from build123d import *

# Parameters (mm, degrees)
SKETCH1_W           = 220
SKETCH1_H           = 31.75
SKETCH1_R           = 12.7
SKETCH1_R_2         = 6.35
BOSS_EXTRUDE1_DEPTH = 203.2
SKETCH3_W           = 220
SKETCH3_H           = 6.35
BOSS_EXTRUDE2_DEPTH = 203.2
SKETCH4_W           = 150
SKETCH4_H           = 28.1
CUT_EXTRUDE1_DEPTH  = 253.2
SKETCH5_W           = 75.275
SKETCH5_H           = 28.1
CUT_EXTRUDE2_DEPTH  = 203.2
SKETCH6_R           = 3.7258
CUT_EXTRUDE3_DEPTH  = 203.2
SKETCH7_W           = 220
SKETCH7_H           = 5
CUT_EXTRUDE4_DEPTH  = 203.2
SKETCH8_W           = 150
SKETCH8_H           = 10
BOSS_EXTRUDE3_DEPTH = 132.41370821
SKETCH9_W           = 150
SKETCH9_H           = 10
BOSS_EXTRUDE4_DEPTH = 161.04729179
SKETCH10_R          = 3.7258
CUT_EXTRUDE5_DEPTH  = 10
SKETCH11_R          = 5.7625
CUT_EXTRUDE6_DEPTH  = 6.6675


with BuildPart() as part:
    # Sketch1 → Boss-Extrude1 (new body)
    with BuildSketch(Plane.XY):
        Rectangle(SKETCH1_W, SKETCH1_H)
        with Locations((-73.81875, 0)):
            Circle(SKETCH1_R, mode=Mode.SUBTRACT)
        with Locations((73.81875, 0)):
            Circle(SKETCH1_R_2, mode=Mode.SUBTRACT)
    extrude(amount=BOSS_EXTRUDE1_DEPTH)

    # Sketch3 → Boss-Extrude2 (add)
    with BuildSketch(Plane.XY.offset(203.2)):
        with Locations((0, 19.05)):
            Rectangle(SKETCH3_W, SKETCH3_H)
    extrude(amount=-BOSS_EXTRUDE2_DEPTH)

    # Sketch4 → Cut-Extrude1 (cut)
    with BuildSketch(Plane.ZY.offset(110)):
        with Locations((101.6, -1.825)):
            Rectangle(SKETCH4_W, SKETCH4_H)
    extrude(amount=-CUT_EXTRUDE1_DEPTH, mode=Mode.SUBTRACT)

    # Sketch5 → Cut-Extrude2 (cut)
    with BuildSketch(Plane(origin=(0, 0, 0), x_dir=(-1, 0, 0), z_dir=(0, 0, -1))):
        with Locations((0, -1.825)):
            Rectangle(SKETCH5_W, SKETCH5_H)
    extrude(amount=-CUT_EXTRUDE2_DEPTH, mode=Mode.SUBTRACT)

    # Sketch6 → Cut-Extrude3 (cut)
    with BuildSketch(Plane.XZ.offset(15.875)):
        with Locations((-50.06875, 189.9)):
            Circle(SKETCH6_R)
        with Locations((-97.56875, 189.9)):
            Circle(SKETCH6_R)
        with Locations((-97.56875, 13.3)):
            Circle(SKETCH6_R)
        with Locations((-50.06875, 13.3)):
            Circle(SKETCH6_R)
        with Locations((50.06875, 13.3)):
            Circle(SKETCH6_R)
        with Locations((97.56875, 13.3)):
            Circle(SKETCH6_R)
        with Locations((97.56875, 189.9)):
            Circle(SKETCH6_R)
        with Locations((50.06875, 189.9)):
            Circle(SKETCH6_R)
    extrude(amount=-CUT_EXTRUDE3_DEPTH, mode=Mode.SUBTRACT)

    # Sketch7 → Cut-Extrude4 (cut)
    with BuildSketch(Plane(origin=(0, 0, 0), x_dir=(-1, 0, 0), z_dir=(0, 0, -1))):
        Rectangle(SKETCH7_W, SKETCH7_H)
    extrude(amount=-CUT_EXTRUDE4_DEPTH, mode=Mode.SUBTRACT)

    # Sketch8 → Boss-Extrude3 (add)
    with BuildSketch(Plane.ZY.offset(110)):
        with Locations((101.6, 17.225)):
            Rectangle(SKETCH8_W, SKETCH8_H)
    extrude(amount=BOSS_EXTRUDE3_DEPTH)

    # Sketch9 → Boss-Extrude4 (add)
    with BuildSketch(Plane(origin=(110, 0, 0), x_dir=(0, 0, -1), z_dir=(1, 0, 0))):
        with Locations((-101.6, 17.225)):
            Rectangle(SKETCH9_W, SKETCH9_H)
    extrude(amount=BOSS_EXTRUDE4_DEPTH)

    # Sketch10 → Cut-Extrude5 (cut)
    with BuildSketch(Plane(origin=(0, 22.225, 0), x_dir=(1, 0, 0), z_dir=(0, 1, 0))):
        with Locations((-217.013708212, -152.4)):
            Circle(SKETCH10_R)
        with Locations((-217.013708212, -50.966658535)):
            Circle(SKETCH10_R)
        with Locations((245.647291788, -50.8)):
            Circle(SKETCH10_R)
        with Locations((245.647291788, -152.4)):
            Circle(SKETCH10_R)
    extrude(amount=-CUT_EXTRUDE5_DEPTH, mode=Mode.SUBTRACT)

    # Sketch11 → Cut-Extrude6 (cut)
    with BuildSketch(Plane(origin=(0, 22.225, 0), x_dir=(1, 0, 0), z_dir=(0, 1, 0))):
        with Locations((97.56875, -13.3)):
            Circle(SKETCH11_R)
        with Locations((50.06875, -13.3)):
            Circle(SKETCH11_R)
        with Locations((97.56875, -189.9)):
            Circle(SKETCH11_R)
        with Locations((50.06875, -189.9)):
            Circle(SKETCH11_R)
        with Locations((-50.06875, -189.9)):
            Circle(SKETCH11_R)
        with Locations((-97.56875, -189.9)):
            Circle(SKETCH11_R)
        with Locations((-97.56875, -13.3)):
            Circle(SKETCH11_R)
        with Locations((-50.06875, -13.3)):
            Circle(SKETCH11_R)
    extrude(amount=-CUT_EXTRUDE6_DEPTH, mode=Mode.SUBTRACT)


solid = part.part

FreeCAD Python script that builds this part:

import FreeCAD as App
import Part
import Sketcher
Q = App.Units.Quantity

doc = App.newDocument("Part")
body = doc.addObject("PartDesign::Body", "Body")
body.AllowCompound = True

# Sketch on XY plane
sketch1 = body.newObject("Sketcher::SketchObject", "Sketch")
sketch1.AttachmentSupport = (doc.getObject("XY_Plane"), [""])
sketch1.MapMode = "FlatFace"
sketch1.addGeometry(Part.LineSegment(App.Vector(-110, 15.875, 0), App.Vector(-110, -15.875, 0)), False)
sketch1.addGeometry(Part.LineSegment(App.Vector(-110, -15.875, 0), App.Vector(110, -15.875, 0)), False)
sketch1.addGeometry(Part.LineSegment(App.Vector(110, -15.875, 0), App.Vector(110, 15.875, 0)), False)
sketch1.addGeometry(Part.LineSegment(App.Vector(110, 15.875, 0), App.Vector(-110, 15.875, 0)), False)
sketch1.addGeometry(Part.Circle(App.Vector(-73.81875, 0, 0), App.Vector(0, 0, 1), 12.7), False)
sketch1.addGeometry(Part.Circle(App.Vector(73.81875, 0, 0), App.Vector(0, 0, 1), 6.35), False)
sketch1.addConstraint(Sketcher.Constraint("Coincident", 0, 2, 1, 1))
sketch1.addConstraint(Sketcher.Constraint("Coincident", 1, 2, 2, 1))
sketch1.addConstraint(Sketcher.Constraint("Coincident", 2, 2, 3, 1))
sketch1.addConstraint(Sketcher.Constraint("Coincident", 3, 2, 0, 1))
sketch1.addConstraint(Sketcher.Constraint("Vertical", 0))
sketch1.addConstraint(Sketcher.Constraint("Horizontal", 1))
sketch1.addConstraint(Sketcher.Constraint("Vertical", 2))
sketch1.addConstraint(Sketcher.Constraint("Horizontal", 3))
sketch1.addConstraint(Sketcher.Constraint("Symmetric", 4, 3, 5, 3, -1, 1))
sketch1.addConstraint(Sketcher.Constraint("Symmetric", 0, 2, 2, 2, -1, 1))
sketch1.addConstraint(Sketcher.Constraint("PointOnObject", 4, 3, -1))
sketch1.addConstraint(Sketcher.Constraint("Diameter", 4, Q("25.4 mm")))
sketch1.addConstraint(Sketcher.Constraint("Diameter", 5, Q("12.7 mm")))
sketch1.addConstraint(Sketcher.Constraint("DistanceX", 1, 1, 1, 2, Q("220 mm")))
sketch1.addConstraint(Sketcher.Constraint("DistanceY", 0, 2, 0, 1, Q("31.75 mm")))
sketch1.addConstraint(Sketcher.Constraint("DistanceX", 4, 3, 5, 3, Q("147.6375 mm")))
pad1 = body.newObject("PartDesign::Pad", "Pad")
pad1.Profile = sketch1
pad1.Length = 203.2

# Sketch on XY plane
sketch2 = body.newObject("Sketcher::SketchObject", "Sketch001")
sketch2.AttachmentSupport = (doc.getObject("XY_Plane"), [""])
sketch2.MapMode = "FlatFace"
sketch2.AttachmentOffset = App.Placement(App.Vector(0, 0, 203.2), App.Rotation())
sketch2.addGeometry(Part.LineSegment(App.Vector(-110, 22.225, 0), App.Vector(-110, 15.875, 0)), False)
sketch2.addGeometry(Part.LineSegment(App.Vector(-110, 15.875, 0), App.Vector(110, 15.875, 0)), False)
sketch2.addGeometry(Part.LineSegment(App.Vector(110, 15.875, 0), App.Vector(110, 22.225, 0)), False)
sketch2.addGeometry(Part.LineSegment(App.Vector(110, 22.225, 0), App.Vector(-110, 22.225, 0)), False)
sketch2.addConstraint(Sketcher.Constraint("Coincident", 0, 2, 1, 1))
sketch2.addConstraint(Sketcher.Constraint("Coincident", 1, 2, 2, 1))
sketch2.addConstraint(Sketcher.Constraint("Coincident", 2, 2, 3, 1))
sketch2.addConstraint(Sketcher.Constraint("Coincident", 3, 2, 0, 1))
sketch2.addConstraint(Sketcher.Constraint("Vertical", 0))
sketch2.addConstraint(Sketcher.Constraint("Horizontal", 1))
sketch2.addConstraint(Sketcher.Constraint("Vertical", 2))
sketch2.addConstraint(Sketcher.Constraint("Horizontal", 3))
sketch2.addConstraint(Sketcher.Constraint("DistanceX", 1, 1, 1, 2, Q("220 mm")))
sketch2.addConstraint(Sketcher.Constraint("DistanceX", 0, 2, -1, 1, Q("110 mm")))
sketch2.addConstraint(Sketcher.Constraint("DistanceY", 0, 2, 0, 1, Q("6.35 mm")))
sketch2.addConstraint(Sketcher.Constraint("DistanceY", -1, 1, 0, 2, Q("15.875 mm")))
pad2 = body.newObject("PartDesign::Pad", "Pad001")
pad2.Profile = sketch2
pad2.Length = 203.2
pad2.Reversed = True

# Sketch on YZ plane
sketch3 = body.newObject("Sketcher::SketchObject", "Sketch002")
sketch3.AttachmentSupport = (doc.getObject("YZ_Plane"), [""])
sketch3.MapMode = "FlatFace"
sketch3.AttachmentOffset = App.Placement(App.Vector(0, 0, -110), App.Rotation())
sketch3.addGeometry(Part.LineSegment(App.Vector(12.225, 26.6, 0), App.Vector(-15.875, 26.6, 0)), False)
sketch3.addGeometry(Part.LineSegment(App.Vector(-15.875, 26.6, 0), App.Vector(-15.875, 176.6, 0)), False)
sketch3.addGeometry(Part.LineSegment(App.Vector(-15.875, 176.6, 0), App.Vector(12.225, 176.6, 0)), False)
sketch3.addGeometry(Part.LineSegment(App.Vector(12.225, 176.6, 0), App.Vector(12.225, 26.6, 0)), False)
sketch3.addConstraint(Sketcher.Constraint("Coincident", 0, 2, 1, 1))
sketch3.addConstraint(Sketcher.Constraint("Coincident", 1, 2, 2, 1))
sketch3.addConstraint(Sketcher.Constraint("Coincident", 2, 2, 3, 1))
sketch3.addConstraint(Sketcher.Constraint("Coincident", 3, 2, 0, 1))
sketch3.addConstraint(Sketcher.Constraint("Horizontal", 0))
sketch3.addConstraint(Sketcher.Constraint("Vertical", 1))
sketch3.addConstraint(Sketcher.Constraint("Horizontal", 2))
sketch3.addConstraint(Sketcher.Constraint("Vertical", 3))
sketch3.addConstraint(Sketcher.Constraint("DistanceY", 1, 1, 1, 2, Q("150 mm")))
sketch3.addConstraint(Sketcher.Constraint("DistanceX", 0, 2, 0, 1, Q("28.1 mm")))
sketch3.addConstraint(Sketcher.Constraint("DistanceY", -1, 1, 0, 2, Q("26.6 mm")))
sketch3.addConstraint(Sketcher.Constraint("DistanceX", 0, 2, -1, 1, Q("15.875 mm")))
pocket1 = body.newObject("PartDesign::Pocket", "Pocket")
pocket1.Profile = sketch3
pocket1.Length = 253.2
pocket1.Reversed = True

# Sketch on XY plane
sketch4 = body.newObject("Sketcher::SketchObject", "Sketch003")
sketch4.AttachmentSupport = (doc.getObject("XY_Plane"), [""])
sketch4.MapMode = "FlatFace"
sketch4.addGeometry(Part.LineSegment(App.Vector(37.6375, 12.225, 0), App.Vector(37.6375, -15.875, 0)), False)
sketch4.addGeometry(Part.LineSegment(App.Vector(37.6375, -15.875, 0), App.Vector(-37.6375, -15.875, 0)), False)
sketch4.addGeometry(Part.LineSegment(App.Vector(-37.6375, -15.875, 0), App.Vector(-37.6375, 12.225, 0)), False)
sketch4.addGeometry(Part.LineSegment(App.Vector(-37.6375, 12.225, 0), App.Vector(37.6375, 12.225, 0)), False)
sketch4.addConstraint(Sketcher.Constraint("Coincident", 0, 2, 1, 1))
sketch4.addConstraint(Sketcher.Constraint("Coincident", 1, 2, 2, 1))
sketch4.addConstraint(Sketcher.Constraint("Coincident", 2, 2, 3, 1))
sketch4.addConstraint(Sketcher.Constraint("Coincident", 3, 2, 0, 1))
sketch4.addConstraint(Sketcher.Constraint("Vertical", 0))
sketch4.addConstraint(Sketcher.Constraint("Horizontal", 1))
sketch4.addConstraint(Sketcher.Constraint("Vertical", 2))
sketch4.addConstraint(Sketcher.Constraint("Horizontal", 3))
sketch4.addConstraint(Sketcher.Constraint("DistanceY", 0, 2, 0, 1, Q("28.1 mm")))
sketch4.addConstraint(Sketcher.Constraint("DistanceX", 1, 2, 1, 1, Q("75.275 mm")))
sketch4.addConstraint(Sketcher.Constraint("DistanceY", 0, 2, -1, 1, Q("15.875 mm")))
sketch4.addConstraint(Sketcher.Constraint("DistanceX", -1, 1, 0, 2, Q("37.6375 mm")))
pocket2 = body.newObject("PartDesign::Pocket", "Pocket001")
pocket2.Profile = sketch4
pocket2.Length = 203.2
pocket2.Reversed = True

# Sketch on XZ plane
sketch5 = body.newObject("Sketcher::SketchObject", "Sketch004")
sketch5.AttachmentSupport = (doc.getObject("XZ_Plane"), [""])
sketch5.MapMode = "FlatFace"
sketch5.AttachmentOffset = App.Placement(App.Vector(0, 0, 15.875), App.Rotation())
sketch5.addGeometry(Part.Circle(App.Vector(-50.06875, 189.9, 0), App.Vector(0, 0, 1), 3.7258), False)
sketch5.addGeometry(Part.Circle(App.Vector(-97.56875, 189.9, 0), App.Vector(0, 0, 1), 3.7258), False)
sketch5.addGeometry(Part.Circle(App.Vector(-97.56875, 13.3, 0), App.Vector(0, 0, 1), 3.7258), False)
sketch5.addGeometry(Part.Circle(App.Vector(-50.06875, 13.3, 0), App.Vector(0, 0, 1), 3.7258), False)
sketch5.addGeometry(Part.Circle(App.Vector(50.06875, 13.3, 0), App.Vector(0, 0, 1), 3.7258), False)
sketch5.addGeometry(Part.Circle(App.Vector(97.56875, 13.3, 0), App.Vector(0, 0, 1), 3.7258), False)
sketch5.addGeometry(Part.Circle(App.Vector(97.56875, 189.9, 0), App.Vector(0, 0, 1), 3.7258), False)
sketch5.addGeometry(Part.Circle(App.Vector(50.06875, 189.9, 0), App.Vector(0, 0, 1), 3.7258), False)
sketch5.addConstraint(Sketcher.Constraint("Equal", 0, 1))
sketch5.addConstraint(Sketcher.Constraint("Equal", 1, 2))
sketch5.addConstraint(Sketcher.Constraint("Equal", 2, 3))
sketch5.addConstraint(Sketcher.Constraint("Equal", 3, 4))
sketch5.addConstraint(Sketcher.Constraint("Equal", 4, 5))
sketch5.addConstraint(Sketcher.Constraint("Equal", 5, 6))
sketch5.addConstraint(Sketcher.Constraint("Equal", 6, 7))
sketch5.addConstraint(Sketcher.Constraint("Symmetric", 3, 3, 4, 3, -2))
sketch5.addConstraint(Sketcher.Constraint("Symmetric", 2, 3, 5, 3, -2))
sketch5.addConstraint(Sketcher.Constraint("Symmetric", 1, 3, 6, 3, -2))
sketch5.addConstraint(Sketcher.Constraint("Symmetric", 0, 3, 7, 3, -2))
sketch5.addConstraint(Sketcher.Constraint("Horizontal", 0, 3, 1, 3))
sketch5.addConstraint(Sketcher.Constraint("Horizontal", 2, 3, 3, 3))
sketch5.addConstraint(Sketcher.Constraint("Vertical", 1, 3, 2, 3))
sketch5.addConstraint(Sketcher.Constraint("Vertical", 0, 3, 3, 3))
sketch5.addConstraint(Sketcher.Constraint("Diameter", 0, Q("7.4516 mm")))
sketch5.addConstraint(Sketcher.Constraint("DistanceY", -1, 1, 0, 3, Q("189.9 mm")))
sketch5.addConstraint(Sketcher.Constraint("DistanceY", -1, 1, 2, 3, Q("13.3 mm")))
sketch5.addConstraint(Sketcher.Constraint("DistanceX", 1, 3, 0, 3, Q("47.5 mm")))
sketch5.addConstraint(Sketcher.Constraint("DistanceX", 3, 3, 4, 3, Q("100.1375 mm")))
pocket3 = body.newObject("PartDesign::Pocket", "Pocket002")
pocket3.Profile = sketch5
pocket3.Length = 203.2

# Sketch on XY plane
sketch6 = body.newObject("Sketcher::SketchObject", "Sketch005")
sketch6.AttachmentSupport = (doc.getObject("XY_Plane"), [""])
sketch6.MapMode = "FlatFace"
sketch6.addGeometry(Part.LineSegment(App.Vector(110, 2.5, 0), App.Vector(110, -2.5, 0)), False)
sketch6.addGeometry(Part.LineSegment(App.Vector(110, -2.5, 0), App.Vector(-110, -2.5, 0)), False)
sketch6.addGeometry(Part.LineSegment(App.Vector(-110, -2.5, 0), App.Vector(-110, 2.5, 0)), False)
sketch6.addGeometry(Part.LineSegment(App.Vector(-110, 2.5, 0), App.Vector(110, 2.5, 0)), False)
sketch6.addConstraint(Sketcher.Constraint("Coincident", 0, 2, 1, 1))
sketch6.addConstraint(Sketcher.Constraint("Coincident", 1, 2, 2, 1))
sketch6.addConstraint(Sketcher.Constraint("Coincident", 2, 2, 3, 1))
sketch6.addConstraint(Sketcher.Constraint("Coincident", 3, 2, 0, 1))
sketch6.addConstraint(Sketcher.Constraint("Vertical", 0))
sketch6.addConstraint(Sketcher.Constraint("Horizontal", 1))
sketch6.addConstraint(Sketcher.Constraint("Vertical", 2))
sketch6.addConstraint(Sketcher.Constraint("Horizontal", 3))
sketch6.addConstraint(Sketcher.Constraint("Symmetric", 0, 2, 2, 2, -1, 1))
sketch6.addConstraint(Sketcher.Constraint("DistanceX", 1, 2, 1, 1, Q("220 mm")))
sketch6.addConstraint(Sketcher.Constraint("DistanceY", 0, 2, 0, 1, Q("5 mm")))
pocket4 = body.newObject("PartDesign::Pocket", "Pocket003")
pocket4.Profile = sketch6
pocket4.Length = 203.2
pocket4.Reversed = True

# Sketch on YZ plane
sketch7 = body.newObject("Sketcher::SketchObject", "Sketch006")
sketch7.AttachmentSupport = (doc.getObject("YZ_Plane"), [""])
sketch7.MapMode = "FlatFace"
sketch7.AttachmentOffset = App.Placement(App.Vector(0, 0, -110), App.Rotation())
sketch7.addGeometry(Part.LineSegment(App.Vector(22.225, 26.6, 0), App.Vector(12.225, 26.6, 0)), False)
sketch7.addGeometry(Part.LineSegment(App.Vector(12.225, 26.6, 0), App.Vector(12.225, 176.6, 0)), False)
sketch7.addGeometry(Part.LineSegment(App.Vector(12.225, 176.6, 0), App.Vector(22.225, 176.6, 0)), False)
sketch7.addGeometry(Part.LineSegment(App.Vector(22.225, 176.6, 0), App.Vector(22.225, 26.6, 0)), False)
sketch7.addConstraint(Sketcher.Constraint("Coincident", 0, 2, 1, 1))
sketch7.addConstraint(Sketcher.Constraint("Coincident", 1, 2, 2, 1))
sketch7.addConstraint(Sketcher.Constraint("Coincident", 2, 2, 3, 1))
sketch7.addConstraint(Sketcher.Constraint("Coincident", 3, 2, 0, 1))
sketch7.addConstraint(Sketcher.Constraint("Horizontal", 0))
sketch7.addConstraint(Sketcher.Constraint("Vertical", 1))
sketch7.addConstraint(Sketcher.Constraint("Horizontal", 2))
sketch7.addConstraint(Sketcher.Constraint("Vertical", 3))
sketch7.addConstraint(Sketcher.Constraint("DistanceX", 0, 2, 0, 1, Q("10 mm")))
sketch7.addConstraint(Sketcher.Constraint("DistanceY", 1, 1, 1, 2, Q("150 mm")))
sketch7.addConstraint(Sketcher.Constraint("DistanceY", -1, 1, 0, 2, Q("26.6 mm")))
sketch7.addConstraint(Sketcher.Constraint("DistanceX", -1, 1, 0, 2, Q("12.225 mm")))
pad3 = body.newObject("PartDesign::Pad", "Pad002")
pad3.Profile = sketch7
pad3.Length = 132.413708
pad3.Reversed = True

# Sketch on YZ plane
sketch8 = body.newObject("Sketcher::SketchObject", "Sketch007")
sketch8.AttachmentSupport = (doc.getObject("YZ_Plane"), [""])
sketch8.MapMode = "FlatFace"
sketch8.AttachmentOffset = App.Placement(App.Vector(0, 0, 110), App.Rotation())
sketch8.addGeometry(Part.LineSegment(App.Vector(22.225, 176.6, 0), App.Vector(12.225, 176.6, 0)), False)
sketch8.addGeometry(Part.LineSegment(App.Vector(12.225, 176.6, 0), App.Vector(12.225, 26.6, 0)), False)
sketch8.addGeometry(Part.LineSegment(App.Vector(12.225, 26.6, 0), App.Vector(22.225, 26.6, 0)), False)
sketch8.addGeometry(Part.LineSegment(App.Vector(22.225, 26.6, 0), App.Vector(22.225, 176.6, 0)), False)
sketch8.addConstraint(Sketcher.Constraint("Coincident", 0, 2, 1, 1))
sketch8.addConstraint(Sketcher.Constraint("Coincident", 1, 2, 2, 1))
sketch8.addConstraint(Sketcher.Constraint("Coincident", 2, 2, 3, 1))
sketch8.addConstraint(Sketcher.Constraint("Coincident", 3, 2, 0, 1))
sketch8.addConstraint(Sketcher.Constraint("Horizontal", 0))
sketch8.addConstraint(Sketcher.Constraint("Vertical", 1))
sketch8.addConstraint(Sketcher.Constraint("Horizontal", 2))
sketch8.addConstraint(Sketcher.Constraint("Vertical", 3))
sketch8.addConstraint(Sketcher.Constraint("DistanceX", 0, 2, 0, 1, Q("10 mm")))
sketch8.addConstraint(Sketcher.Constraint("DistanceY", 1, 2, 1, 1, Q("150 mm")))
sketch8.addConstraint(Sketcher.Constraint("DistanceY", -1, 1, 0, 2, Q("176.6 mm")))
sketch8.addConstraint(Sketcher.Constraint("DistanceX", -1, 1, 0, 2, Q("12.225 mm")))
pad4 = body.newObject("PartDesign::Pad", "Pad003")
pad4.Profile = sketch8
pad4.Length = 161.047292

# Sketch on XZ plane
sketch9 = body.newObject("Sketcher::SketchObject", "Sketch008")
sketch9.AttachmentSupport = (doc.getObject("XZ_Plane"), [""])
sketch9.MapMode = "FlatFace"
sketch9.AttachmentOffset = App.Placement(App.Vector(0, 0, -22.225), App.Rotation())
sketch9.addGeometry(Part.Circle(App.Vector(-217.013708, 152.4, 0), App.Vector(0, 0, 1), 3.7258), False)
sketch9.addGeometry(Part.Circle(App.Vector(-217.013708, 50.966659, 0), App.Vector(0, 0, 1), 3.7258), False)
sketch9.addGeometry(Part.Circle(App.Vector(245.647292, 50.8, 0), App.Vector(0, 0, 1), 3.7258), False)
sketch9.addGeometry(Part.Circle(App.Vector(245.647292, 152.4, 0), App.Vector(0, 0, 1), 3.7258), False)
sketch9.addConstraint(Sketcher.Constraint("Equal", 0, 1))
sketch9.addConstraint(Sketcher.Constraint("Equal", 1, 2))
sketch9.addConstraint(Sketcher.Constraint("Equal", 2, 3))
sketch9.addConstraint(Sketcher.Constraint("Horizontal", 0, 3, 3, 3))
sketch9.addConstraint(Sketcher.Constraint("Vertical", 0, 3, 1, 3))
sketch9.addConstraint(Sketcher.Constraint("Vertical", 2, 3, 3, 3))
sketch9.addConstraint(Sketcher.Constraint("Diameter", 0, Q("7.4516 mm")))
sketch9.addConstraint(Sketcher.Constraint("DistanceY", -1, 1, 0, 3, Q("152.4 mm")))
sketch9.addConstraint(Sketcher.Constraint("DistanceY", -1, 1, 2, 3, Q("50.8 mm")))
sketch9.addConstraint(Sketcher.Constraint("DistanceX", 1, 3, 2, 3, Q("462.661 mm")))
sketch9.addConstraint(Sketcher.Constraint("DistanceX", 0, 3, -1, 1, Q("217.013708 mm")))
sketch9.addConstraint(Sketcher.Constraint("DistanceY", -1, 1, 1, 3, Q("50.966659 mm")))
pocket5 = body.newObject("PartDesign::Pocket", "Pocket004")
pocket5.Profile = sketch9
pocket5.Length = 10
pocket5.Reversed = True

# Sketch on XZ plane
sketch10 = body.newObject("Sketcher::SketchObject", "Sketch009")
sketch10.AttachmentSupport = (doc.getObject("XZ_Plane"), [""])
sketch10.MapMode = "FlatFace"
sketch10.AttachmentOffset = App.Placement(App.Vector(0, 0, -22.225), App.Rotation())
sketch10.addGeometry(Part.Circle(App.Vector(97.56875, 13.3, 0), App.Vector(0, 0, 1), 5.7625), False)
sketch10.addGeometry(Part.Circle(App.Vector(50.06875, 13.3, 0), App.Vector(0, 0, 1), 5.7625), False)
sketch10.addGeometry(Part.Circle(App.Vector(97.56875, 189.9, 0), App.Vector(0, 0, 1), 5.7625), False)
sketch10.addGeometry(Part.Circle(App.Vector(50.06875, 189.9, 0), App.Vector(0, 0, 1), 5.7625), False)
sketch10.addGeometry(Part.Circle(App.Vector(-50.06875, 189.9, 0), App.Vector(0, 0, 1), 5.7625), False)
sketch10.addGeometry(Part.Circle(App.Vector(-97.56875, 189.9, 0), App.Vector(0, 0, 1), 5.7625), False)
sketch10.addGeometry(Part.Circle(App.Vector(-97.56875, 13.3, 0), App.Vector(0, 0, 1), 5.7625), False)
sketch10.addGeometry(Part.Circle(App.Vector(-50.06875, 13.3, 0), App.Vector(0, 0, 1), 5.7625), False)
sketch10.addConstraint(Sketcher.Constraint("Equal", 0, 1))
sketch10.addConstraint(Sketcher.Constraint("Equal", 1, 2))
sketch10.addConstraint(Sketcher.Constraint("Equal", 2, 3))
sketch10.addConstraint(Sketcher.Constraint("Equal", 3, 4))
sketch10.addConstraint(Sketcher.Constraint("Equal", 4, 5))
sketch10.addConstraint(Sketcher.Constraint("Equal", 5, 6))
sketch10.addConstraint(Sketcher.Constraint("Equal", 6, 7))
sketch10.addConstraint(Sketcher.Constraint("Symmetric", 3, 3, 4, 3, -2))
sketch10.addConstraint(Sketcher.Constraint("Symmetric", 2, 3, 5, 3, -2))
sketch10.addConstraint(Sketcher.Constraint("Symmetric", 0, 3, 6, 3, -2))
sketch10.addConstraint(Sketcher.Constraint("Symmetric", 1, 3, 7, 3, -2))
sketch10.addConstraint(Sketcher.Constraint("Horizontal", 0, 3, 1, 3))
sketch10.addConstraint(Sketcher.Constraint("Horizontal", 2, 3, 3, 3))
sketch10.addConstraint(Sketcher.Constraint("Vertical", 0, 3, 2, 3))
sketch10.addConstraint(Sketcher.Constraint("Vertical", 1, 3, 3, 3))
sketch10.addConstraint(Sketcher.Constraint("Diameter", 0, Q("11.525 mm")))
sketch10.addConstraint(Sketcher.Constraint("DistanceY", -1, 1, 0, 3, Q("13.3 mm")))
sketch10.addConstraint(Sketcher.Constraint("DistanceY", -1, 1, 2, 3, Q("189.9 mm")))
sketch10.addConstraint(Sketcher.Constraint("DistanceX", 1, 3, 0, 3, Q("47.5 mm")))
sketch10.addConstraint(Sketcher.Constraint("DistanceX", 4, 3, 3, 3, Q("100.1375 mm")))
pocket6 = body.newObject("PartDesign::Pocket", "Pocket005")
pocket6.Profile = sketch10
pocket6.Length = 6.6675
pocket6.Reversed = True

doc.recompute()
